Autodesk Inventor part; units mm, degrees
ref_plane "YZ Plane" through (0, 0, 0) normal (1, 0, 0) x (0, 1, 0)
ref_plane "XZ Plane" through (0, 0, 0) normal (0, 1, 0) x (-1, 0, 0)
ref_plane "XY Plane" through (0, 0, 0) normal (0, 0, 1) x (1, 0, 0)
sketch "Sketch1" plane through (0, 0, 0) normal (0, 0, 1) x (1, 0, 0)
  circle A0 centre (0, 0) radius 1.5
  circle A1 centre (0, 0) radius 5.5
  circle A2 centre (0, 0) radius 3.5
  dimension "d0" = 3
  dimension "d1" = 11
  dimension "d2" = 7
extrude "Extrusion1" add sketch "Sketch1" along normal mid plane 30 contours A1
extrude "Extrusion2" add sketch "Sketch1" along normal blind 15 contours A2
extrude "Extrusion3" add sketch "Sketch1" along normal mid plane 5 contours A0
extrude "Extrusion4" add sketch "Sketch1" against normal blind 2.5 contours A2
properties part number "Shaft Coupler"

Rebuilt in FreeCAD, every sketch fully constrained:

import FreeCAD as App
import Part
import Sketcher

doc = App.newDocument("Part")
body = doc.addObject("PartDesign::Body", "Body")

# Sketch on XY plane
sketch1 = body.newObject("Sketcher::SketchObject", "Sketch")
sketch1.AttachmentSupport = (doc.getObject("XY_Plane"), [""])
sketch1.MapMode = "FlatFace"
sketch1.addGeometry(Part.Circle(App.Vector(0, 0, 0), App.Vector(0, 0, 1), 5.5), False)
sketch1.addGeometry(Part.Circle(App.Vector(0, 0, 0), App.Vector(0, 0, 1), 3.5), False)
sketch1.addConstraint(Sketcher.Constraint("Coincident", 0, 3, -1, 1))
sketch1.addConstraint(Sketcher.Constraint("Coincident", 1, 3, -1, 1))
sketch1.addConstraint(Sketcher.Constraint("Diameter", 0, 11.0))
sketch1.addConstraint(Sketcher.Constraint("Diameter", 1, 7.0))
pad1 = body.newObject("PartDesign::Pad", "Pad")
pad1.Profile = sketch1
pad1.Length = 30
pad1.Midplane = True

# Sketch on XY plane
sketch2 = body.newObject("Sketcher::SketchObject", "Sketch001")
sketch2.AttachmentSupport = (doc.getObject("XY_Plane"), [""])
sketch2.MapMode = "FlatFace"
sketch2.addGeometry(Part.Circle(App.Vector(0, 0, 0), App.Vector(0, 0, 1), 3.5), False)
sketch2.addGeometry(Part.Circle(App.Vector(0, 0, 0), App.Vector(0, 0, 1), 1.5), False)
sketch2.addConstraint(Sketcher.Constraint("Coincident", 0, 3, -1, 1))
sketch2.addConstraint(Sketcher.Constraint("Coincident", 1, 3, -1, 1))
sketch2.addConstraint(Sketcher.Constraint("Diameter", 0, 7.0))
sketch2.addConstraint(Sketcher.Constraint("Diameter", 1, 3.0))
pad2 = body.newObject("PartDesign::Pad", "Pad001")
pad2.Profile = sketch2
pad2.Length = 15

# Sketch on XY plane
sketch3 = body.newObject("Sketcher::SketchObject", "Sketch002")
sketch3.AttachmentSupport = (doc.getObject("XY_Plane"), [""])
sketch3.MapMode = "FlatFace"
sketch3.addGeometry(Part.Circle(App.Vector(0, 0, 0), App.Vector(0, 0, 1), 1.5), False)
sketch3.addConstraint(Sketcher.Constraint("Coincident", 0, 3, -1, 1))
sketch3.addConstraint(Sketcher.Constraint("Diameter", 0, 3.0))
pad3 = body.newObject("PartDesign::Pad", "Pad002")
pad3.Profile = sketch3
pad3.Length = 5
pad3.Midplane = True

# Sketch on XY plane
sketch4 = body.newObject("Sketcher::SketchObject", "Sketch003")
sketch4.AttachmentSupport = (doc.getObject("XY_Plane"), [""])
sketch4.MapMode = "FlatFace"
sketch4.addGeometry(Part.Circle(App.Vector(0, 0, 0), App.Vector(0, 0, 1), 3.5), False)
sketch4.addGeometry(Part.Circle(App.Vector(0, 0, 0), App.Vector(0, 0, 1), 1.5), False)
sketch4.addConstraint(Sketcher.Constraint("Coincident", 0, 3, -1, 1))
sketch4.addConstraint(Sketcher.Constraint("Coincident", 1, 3, -1, 1))
sketch4.addConstraint(Sketcher.Constraint("Diameter", 0, 7.0))
sketch4.addConstraint(Sketcher.Constraint("Diameter", 1, 3.0))
pad4 = body.newObject("PartDesign::Pad", "Pad003")
pad4.Profile = sketch4
pad4.Length = 2.5
pad4.Reversed = True

doc.recompute()
